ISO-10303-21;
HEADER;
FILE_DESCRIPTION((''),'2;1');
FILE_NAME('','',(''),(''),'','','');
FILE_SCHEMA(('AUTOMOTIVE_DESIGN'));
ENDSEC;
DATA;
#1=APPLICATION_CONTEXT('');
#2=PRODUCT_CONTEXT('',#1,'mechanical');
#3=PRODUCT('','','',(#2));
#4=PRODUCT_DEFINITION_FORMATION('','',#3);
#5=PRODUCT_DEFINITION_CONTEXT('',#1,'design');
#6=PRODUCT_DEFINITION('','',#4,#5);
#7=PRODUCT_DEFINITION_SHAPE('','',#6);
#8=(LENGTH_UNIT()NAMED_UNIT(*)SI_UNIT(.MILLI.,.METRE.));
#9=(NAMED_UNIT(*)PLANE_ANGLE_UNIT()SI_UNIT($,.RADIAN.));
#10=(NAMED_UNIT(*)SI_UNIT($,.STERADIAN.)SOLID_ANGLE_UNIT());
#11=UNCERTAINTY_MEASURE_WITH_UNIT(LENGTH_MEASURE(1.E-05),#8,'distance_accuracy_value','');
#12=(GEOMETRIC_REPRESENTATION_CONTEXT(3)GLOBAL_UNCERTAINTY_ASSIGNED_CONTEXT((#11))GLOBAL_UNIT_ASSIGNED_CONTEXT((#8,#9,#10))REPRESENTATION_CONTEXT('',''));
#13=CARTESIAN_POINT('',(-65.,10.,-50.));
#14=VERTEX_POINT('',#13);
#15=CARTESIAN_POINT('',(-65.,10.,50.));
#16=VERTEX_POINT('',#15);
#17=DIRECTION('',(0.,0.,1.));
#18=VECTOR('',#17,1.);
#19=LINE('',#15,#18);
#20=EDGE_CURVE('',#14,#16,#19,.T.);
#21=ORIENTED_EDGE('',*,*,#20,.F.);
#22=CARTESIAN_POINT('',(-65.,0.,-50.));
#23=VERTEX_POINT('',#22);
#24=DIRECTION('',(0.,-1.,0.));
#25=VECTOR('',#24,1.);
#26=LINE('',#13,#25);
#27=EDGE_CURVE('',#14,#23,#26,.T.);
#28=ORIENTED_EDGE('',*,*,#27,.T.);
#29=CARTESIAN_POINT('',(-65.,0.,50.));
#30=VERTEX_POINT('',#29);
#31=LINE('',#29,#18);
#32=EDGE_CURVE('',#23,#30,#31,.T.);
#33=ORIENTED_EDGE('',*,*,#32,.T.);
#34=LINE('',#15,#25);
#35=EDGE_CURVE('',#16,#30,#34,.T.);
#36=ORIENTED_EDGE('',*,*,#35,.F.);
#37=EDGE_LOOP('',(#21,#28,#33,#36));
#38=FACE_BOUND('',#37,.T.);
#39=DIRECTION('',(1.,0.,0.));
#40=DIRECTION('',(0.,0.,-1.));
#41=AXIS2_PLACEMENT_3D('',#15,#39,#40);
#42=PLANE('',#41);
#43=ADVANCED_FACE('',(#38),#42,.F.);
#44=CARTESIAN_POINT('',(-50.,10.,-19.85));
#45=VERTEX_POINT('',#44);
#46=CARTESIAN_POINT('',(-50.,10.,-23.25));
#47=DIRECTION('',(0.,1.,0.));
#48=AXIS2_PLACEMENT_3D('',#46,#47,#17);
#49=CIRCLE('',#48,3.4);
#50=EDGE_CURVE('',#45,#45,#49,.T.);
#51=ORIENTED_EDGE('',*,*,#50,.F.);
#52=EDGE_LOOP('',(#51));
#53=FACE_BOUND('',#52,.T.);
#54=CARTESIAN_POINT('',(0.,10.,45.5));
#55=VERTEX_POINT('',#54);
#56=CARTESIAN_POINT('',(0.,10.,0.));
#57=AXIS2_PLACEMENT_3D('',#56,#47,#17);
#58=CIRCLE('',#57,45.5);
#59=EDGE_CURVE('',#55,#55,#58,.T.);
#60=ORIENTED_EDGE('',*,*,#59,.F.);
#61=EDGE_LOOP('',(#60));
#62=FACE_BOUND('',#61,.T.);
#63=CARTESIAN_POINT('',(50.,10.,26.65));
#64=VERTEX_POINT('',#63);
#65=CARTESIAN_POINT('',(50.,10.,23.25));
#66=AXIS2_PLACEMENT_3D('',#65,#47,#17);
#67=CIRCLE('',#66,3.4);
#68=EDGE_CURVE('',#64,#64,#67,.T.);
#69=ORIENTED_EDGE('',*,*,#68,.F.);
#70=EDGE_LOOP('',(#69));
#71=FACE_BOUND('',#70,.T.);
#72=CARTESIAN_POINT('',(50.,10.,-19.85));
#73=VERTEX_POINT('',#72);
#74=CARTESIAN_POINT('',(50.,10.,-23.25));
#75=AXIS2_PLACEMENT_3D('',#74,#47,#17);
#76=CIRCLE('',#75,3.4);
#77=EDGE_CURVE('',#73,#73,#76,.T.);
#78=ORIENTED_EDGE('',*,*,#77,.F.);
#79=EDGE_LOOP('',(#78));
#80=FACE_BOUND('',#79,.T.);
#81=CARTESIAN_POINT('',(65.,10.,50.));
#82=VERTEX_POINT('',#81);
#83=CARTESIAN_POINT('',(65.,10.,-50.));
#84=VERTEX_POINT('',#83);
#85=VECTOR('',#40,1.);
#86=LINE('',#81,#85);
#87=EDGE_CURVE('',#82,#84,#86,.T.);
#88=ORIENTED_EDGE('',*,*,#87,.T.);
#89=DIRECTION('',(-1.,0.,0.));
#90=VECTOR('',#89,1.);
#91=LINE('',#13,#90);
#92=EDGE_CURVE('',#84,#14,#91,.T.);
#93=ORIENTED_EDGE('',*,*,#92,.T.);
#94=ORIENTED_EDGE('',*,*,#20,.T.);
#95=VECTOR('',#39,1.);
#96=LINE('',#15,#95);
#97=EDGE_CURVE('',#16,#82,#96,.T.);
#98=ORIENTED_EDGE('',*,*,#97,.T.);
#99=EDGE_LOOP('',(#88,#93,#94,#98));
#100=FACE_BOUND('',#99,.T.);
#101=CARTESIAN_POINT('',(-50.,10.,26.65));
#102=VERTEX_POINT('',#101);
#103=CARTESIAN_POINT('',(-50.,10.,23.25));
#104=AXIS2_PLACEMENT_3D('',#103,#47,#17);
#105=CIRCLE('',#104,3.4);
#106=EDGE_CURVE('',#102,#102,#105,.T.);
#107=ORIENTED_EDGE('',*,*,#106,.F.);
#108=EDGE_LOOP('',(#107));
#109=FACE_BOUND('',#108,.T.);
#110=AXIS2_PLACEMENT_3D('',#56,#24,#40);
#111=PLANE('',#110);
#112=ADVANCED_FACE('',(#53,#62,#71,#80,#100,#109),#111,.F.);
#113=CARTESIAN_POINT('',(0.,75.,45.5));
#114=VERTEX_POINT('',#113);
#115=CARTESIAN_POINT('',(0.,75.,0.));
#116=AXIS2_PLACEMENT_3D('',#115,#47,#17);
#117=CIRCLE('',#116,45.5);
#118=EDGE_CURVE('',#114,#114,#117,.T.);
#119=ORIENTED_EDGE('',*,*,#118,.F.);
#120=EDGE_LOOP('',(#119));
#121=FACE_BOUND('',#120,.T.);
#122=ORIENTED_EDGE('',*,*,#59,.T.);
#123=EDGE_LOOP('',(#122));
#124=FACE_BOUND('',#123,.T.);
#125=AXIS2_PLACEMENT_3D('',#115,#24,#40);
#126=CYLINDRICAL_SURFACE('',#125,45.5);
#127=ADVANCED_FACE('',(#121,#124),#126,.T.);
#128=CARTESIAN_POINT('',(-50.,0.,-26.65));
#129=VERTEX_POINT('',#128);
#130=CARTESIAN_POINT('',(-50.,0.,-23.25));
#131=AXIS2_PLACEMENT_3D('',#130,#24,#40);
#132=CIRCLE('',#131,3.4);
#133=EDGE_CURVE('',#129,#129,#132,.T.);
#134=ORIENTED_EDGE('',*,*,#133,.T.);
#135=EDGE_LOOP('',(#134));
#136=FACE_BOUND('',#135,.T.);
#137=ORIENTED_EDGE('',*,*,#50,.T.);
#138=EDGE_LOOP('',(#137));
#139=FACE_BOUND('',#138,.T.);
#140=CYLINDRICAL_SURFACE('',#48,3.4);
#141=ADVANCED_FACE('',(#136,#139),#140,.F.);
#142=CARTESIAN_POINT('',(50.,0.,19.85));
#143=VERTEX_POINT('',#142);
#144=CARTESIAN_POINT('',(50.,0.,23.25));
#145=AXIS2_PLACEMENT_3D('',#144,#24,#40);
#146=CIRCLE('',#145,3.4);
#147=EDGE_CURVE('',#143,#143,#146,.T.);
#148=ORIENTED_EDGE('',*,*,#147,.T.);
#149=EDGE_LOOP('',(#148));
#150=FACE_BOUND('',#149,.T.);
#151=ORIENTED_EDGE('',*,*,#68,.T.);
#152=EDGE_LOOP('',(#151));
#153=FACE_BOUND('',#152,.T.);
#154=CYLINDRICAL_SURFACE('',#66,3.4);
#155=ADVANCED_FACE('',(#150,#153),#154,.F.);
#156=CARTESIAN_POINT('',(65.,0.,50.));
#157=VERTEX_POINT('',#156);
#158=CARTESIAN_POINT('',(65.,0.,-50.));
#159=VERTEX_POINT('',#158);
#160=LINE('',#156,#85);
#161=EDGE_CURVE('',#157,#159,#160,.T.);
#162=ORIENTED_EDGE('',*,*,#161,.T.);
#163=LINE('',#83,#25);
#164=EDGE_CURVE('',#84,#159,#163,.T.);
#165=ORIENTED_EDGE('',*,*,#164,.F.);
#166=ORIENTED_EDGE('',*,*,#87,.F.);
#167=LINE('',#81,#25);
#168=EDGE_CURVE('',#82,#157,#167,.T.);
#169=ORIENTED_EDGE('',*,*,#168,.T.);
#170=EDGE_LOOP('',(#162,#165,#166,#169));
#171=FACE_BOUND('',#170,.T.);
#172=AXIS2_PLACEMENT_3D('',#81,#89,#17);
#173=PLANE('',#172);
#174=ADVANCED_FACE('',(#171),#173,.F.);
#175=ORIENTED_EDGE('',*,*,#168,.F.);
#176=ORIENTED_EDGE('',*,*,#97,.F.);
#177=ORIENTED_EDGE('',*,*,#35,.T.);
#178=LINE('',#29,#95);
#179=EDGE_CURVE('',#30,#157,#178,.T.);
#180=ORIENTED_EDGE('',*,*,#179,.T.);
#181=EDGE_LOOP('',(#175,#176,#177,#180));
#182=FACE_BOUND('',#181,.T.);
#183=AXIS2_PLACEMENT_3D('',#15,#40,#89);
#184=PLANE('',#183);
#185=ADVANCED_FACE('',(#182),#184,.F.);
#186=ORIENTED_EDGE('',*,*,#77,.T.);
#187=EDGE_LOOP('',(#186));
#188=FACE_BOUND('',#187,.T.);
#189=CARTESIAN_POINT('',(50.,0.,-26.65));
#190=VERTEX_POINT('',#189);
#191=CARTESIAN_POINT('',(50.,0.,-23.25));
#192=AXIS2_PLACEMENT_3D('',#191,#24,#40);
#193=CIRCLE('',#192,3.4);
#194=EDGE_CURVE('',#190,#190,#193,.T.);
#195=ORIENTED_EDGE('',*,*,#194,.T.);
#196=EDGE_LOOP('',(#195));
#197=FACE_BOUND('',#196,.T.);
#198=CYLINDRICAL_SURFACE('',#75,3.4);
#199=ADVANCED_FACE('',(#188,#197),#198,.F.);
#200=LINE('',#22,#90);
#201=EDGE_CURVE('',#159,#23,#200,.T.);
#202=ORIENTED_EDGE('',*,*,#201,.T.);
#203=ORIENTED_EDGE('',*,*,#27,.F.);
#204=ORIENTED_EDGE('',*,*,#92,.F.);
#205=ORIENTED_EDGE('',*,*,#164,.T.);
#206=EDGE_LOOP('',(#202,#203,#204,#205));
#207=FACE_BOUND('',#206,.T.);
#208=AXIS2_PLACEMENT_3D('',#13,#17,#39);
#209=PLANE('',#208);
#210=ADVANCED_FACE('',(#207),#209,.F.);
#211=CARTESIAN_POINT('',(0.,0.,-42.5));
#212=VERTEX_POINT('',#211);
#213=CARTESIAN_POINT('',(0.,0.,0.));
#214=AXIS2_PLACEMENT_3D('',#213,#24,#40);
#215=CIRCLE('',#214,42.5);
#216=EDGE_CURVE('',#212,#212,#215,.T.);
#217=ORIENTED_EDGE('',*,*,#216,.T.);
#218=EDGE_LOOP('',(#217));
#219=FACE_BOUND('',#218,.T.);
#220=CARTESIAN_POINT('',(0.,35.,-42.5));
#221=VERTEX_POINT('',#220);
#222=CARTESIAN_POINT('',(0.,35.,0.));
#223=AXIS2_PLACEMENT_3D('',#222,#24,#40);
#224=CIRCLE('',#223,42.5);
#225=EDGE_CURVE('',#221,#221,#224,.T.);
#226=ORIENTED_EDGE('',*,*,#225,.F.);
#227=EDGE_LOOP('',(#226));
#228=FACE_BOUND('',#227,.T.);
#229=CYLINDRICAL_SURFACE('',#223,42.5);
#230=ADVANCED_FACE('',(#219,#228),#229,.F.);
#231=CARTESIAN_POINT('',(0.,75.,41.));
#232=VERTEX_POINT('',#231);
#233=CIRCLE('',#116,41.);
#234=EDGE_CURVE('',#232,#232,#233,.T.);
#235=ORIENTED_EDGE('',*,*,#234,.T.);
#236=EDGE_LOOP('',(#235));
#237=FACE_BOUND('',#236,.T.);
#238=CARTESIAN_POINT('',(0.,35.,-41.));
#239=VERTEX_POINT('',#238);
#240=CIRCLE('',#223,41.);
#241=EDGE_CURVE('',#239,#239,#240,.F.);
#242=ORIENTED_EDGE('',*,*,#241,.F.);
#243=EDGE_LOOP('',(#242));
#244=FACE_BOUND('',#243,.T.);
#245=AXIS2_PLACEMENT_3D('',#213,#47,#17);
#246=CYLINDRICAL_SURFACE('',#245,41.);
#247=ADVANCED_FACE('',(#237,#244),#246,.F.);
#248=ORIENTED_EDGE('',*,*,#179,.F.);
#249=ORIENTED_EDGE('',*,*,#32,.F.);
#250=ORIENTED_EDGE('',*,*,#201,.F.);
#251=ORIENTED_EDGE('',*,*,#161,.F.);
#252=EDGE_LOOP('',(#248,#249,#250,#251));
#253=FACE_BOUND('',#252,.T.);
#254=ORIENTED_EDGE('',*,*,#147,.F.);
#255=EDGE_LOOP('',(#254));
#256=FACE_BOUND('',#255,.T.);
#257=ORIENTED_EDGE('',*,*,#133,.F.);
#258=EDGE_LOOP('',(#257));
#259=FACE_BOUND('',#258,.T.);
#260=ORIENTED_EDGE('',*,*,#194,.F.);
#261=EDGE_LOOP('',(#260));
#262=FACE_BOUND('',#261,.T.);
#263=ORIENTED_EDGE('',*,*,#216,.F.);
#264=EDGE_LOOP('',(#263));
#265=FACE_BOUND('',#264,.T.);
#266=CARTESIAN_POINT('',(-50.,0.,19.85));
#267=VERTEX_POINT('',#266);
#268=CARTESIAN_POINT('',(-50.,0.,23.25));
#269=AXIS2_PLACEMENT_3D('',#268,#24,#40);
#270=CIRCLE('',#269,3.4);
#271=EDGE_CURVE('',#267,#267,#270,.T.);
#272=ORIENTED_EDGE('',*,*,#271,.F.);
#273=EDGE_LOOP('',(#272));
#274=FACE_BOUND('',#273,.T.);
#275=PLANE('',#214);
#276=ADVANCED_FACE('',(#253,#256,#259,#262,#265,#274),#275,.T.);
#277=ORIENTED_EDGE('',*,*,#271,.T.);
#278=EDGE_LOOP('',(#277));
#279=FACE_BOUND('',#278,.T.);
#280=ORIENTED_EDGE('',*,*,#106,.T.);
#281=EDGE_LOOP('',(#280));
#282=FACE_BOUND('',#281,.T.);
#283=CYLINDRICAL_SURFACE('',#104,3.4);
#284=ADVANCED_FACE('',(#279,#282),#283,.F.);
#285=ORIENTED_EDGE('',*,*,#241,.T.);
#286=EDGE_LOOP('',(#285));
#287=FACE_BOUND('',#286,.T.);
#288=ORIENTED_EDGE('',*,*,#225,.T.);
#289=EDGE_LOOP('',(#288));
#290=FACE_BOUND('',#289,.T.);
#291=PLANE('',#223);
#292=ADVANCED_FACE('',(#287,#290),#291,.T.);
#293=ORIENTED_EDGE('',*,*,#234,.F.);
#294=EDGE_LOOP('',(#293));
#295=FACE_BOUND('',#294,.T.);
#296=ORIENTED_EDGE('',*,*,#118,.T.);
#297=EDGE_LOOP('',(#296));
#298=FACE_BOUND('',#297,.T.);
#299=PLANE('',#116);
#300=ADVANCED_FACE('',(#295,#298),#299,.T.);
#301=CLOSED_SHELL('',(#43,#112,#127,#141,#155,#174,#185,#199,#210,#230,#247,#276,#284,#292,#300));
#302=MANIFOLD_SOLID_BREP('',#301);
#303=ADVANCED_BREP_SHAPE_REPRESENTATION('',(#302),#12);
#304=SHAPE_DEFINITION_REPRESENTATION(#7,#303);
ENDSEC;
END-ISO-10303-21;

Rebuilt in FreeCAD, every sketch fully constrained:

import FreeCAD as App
import Part
import Sketcher
from FreeCAD import Vector
Q = App.Units.Quantity


def add_polygon(sketch, points):
    """Adds a closed chain of lines whose ends are joined by coincident constraints."""
    first, n = sketch.GeometryCount, len(points)
    for a, b in zip(points, points[1:] + points[:1]):
        sketch.addGeometry(Part.LineSegment(App.Vector(*a, 0), App.Vector(*b, 0)), False)
    for i in range(n):
        sketch.addConstraint(Sketcher.Constraint("Coincident", first + i, 2, first + (i + 1) % n, 1))

doc = App.newDocument("Part")
body = doc.addObject("PartDesign::Body", "Body")

# Sketch on XZ plane
sketch1 = body.newObject("Sketcher::SketchObject", "Sketch")
sketch1.AttachmentSupport = (doc.getObject("XZ_Plane"), [""])
sketch1.MapMode = "FlatFace"
add_polygon(sketch1, [(-65, -50), (-65, 50), (65, 50), (65, -50)])  # lines 0-3
sketch1.addConstraint(Sketcher.Constraint("Vertical", 0))
sketch1.addConstraint(Sketcher.Constraint("Horizontal", 1))
sketch1.addConstraint(Sketcher.Constraint("Vertical", 2))
sketch1.addConstraint(Sketcher.Constraint("Horizontal", 3))
sketch1.addConstraint(Sketcher.Constraint("Symmetric", 0, 2, 2, 2, -1, 1))
sketch1.addConstraint(Sketcher.Constraint("DistanceX", 1, 1, 1, 2, Q("130 mm")))
sketch1.addConstraint(Sketcher.Constraint("DistanceY", 0, 1, 0, 2, Q("100 mm")))
pad1 = body.newObject("PartDesign::Pad", "Pad")
pad1.Profile = sketch1
pad1.Length = 10
pad1.Reversed = True

# Sketch on XZ plane
sketch2 = body.newObject("Sketcher::SketchObject", "Sketch001")
sketch2.AttachmentSupport = (doc.getObject("XZ_Plane"), [""])
sketch2.MapMode = "FlatFace"
sketch2.AttachmentOffset = App.Placement(Vector(0, 0, -10), App.Rotation())
sketch2.addGeometry(Part.Circle(Vector(0, 0, 0), Vector(0, 0, 1), 46), False)
sketch2.addConstraint(Sketcher.Constraint("Coincident", 0, 3, -1, 1))
sketch2.addConstraint(Sketcher.Constraint("Diameter", 0, Q("91 mm")))
pad2 = body.newObject("PartDesign::Pad", "Pad001")
pad2.Profile = sketch2
pad2.Length = 65
pad2.Reversed = True

# Sketch on XZ plane
sketch3 = body.newObject("Sketcher::SketchObject", "Sketch002")
sketch3.AttachmentSupport = (doc.getObject("XZ_Plane"), [""])
sketch3.MapMode = "FlatFace"
sketch3.AttachmentOffset = App.Placement(Vector(0, 0, -75), App.Rotation())
sketch3.addGeometry(Part.Circle(Vector(0, 0, 0), Vector(0, 0, 1), 41), False)
sketch3.addConstraint(Sketcher.Constraint("Coincident", 0, 3, -1, 1))
sketch3.addConstraint(Sketcher.Constraint("Diameter", 0, Q("82 mm")))
pocket1 = body.newObject("PartDesign::Pocket", "Pocket")
pocket1.Profile = sketch3
pocket1.Type = "ThroughAll"
pocket1.Reversed = True

# Sketch on XZ plane
sketch4 = body.newObject("Sketcher::SketchObject", "Sketch003")
sketch4.AttachmentSupport = (doc.getObject("XZ_Plane"), [""])
sketch4.MapMode = "FlatFace"
sketch4.addGeometry(Part.Circle(Vector(0, 0, 0), Vector(0, 0, 1), 42), False)
sketch4.addConstraint(Sketcher.Constraint("Coincident", 0, 3, -1, 1))
sketch4.addConstraint(Sketcher.Constraint("Diameter", 0, Q("85 mm")))
pocket2 = body.newObject("PartDesign::Pocket", "Pocket001")
pocket2.Profile = sketch4
pocket2.Length = 35

# Sketch on XZ plane
sketch5 = body.newObject("Sketcher::SketchObject", "Sketch004")
sketch5.AttachmentSupport = (doc.getObject("XZ_Plane"), [""])
sketch5.MapMode = "FlatFace"
sketch5.AttachmentOffset = App.Placement(Vector(0, 0, -10), App.Rotation())
sketch5.addGeometry(Part.Circle(Vector(-50, -23.2, 0), Vector(0, 0, 1), 3.4), False)
sketch5.addGeometry(Part.Circle(Vector(-50, 23.2, 0), Vector(0, 0, 1), 3.4), False)
sketch5.addGeometry(Part.Circle(Vector(50, 23.2, 0), Vector(0, 0, 1), 3.4), False)
sketch5.addGeometry(Part.Circle(Vector(50, -23.2, 0), Vector(0, 0, 1), 3.4), False)
sketch5.addConstraint(Sketcher.Constraint("Equal", 0, 1))
sketch5.addConstraint(Sketcher.Constraint("Equal", 1, 2))
sketch5.addConstraint(Sketcher.Constraint("Equal", 2, 3))
sketch5.addConstraint(Sketcher.Constraint("Symmetric", 0, 3, 2, 3, -1, 1))
sketch5.addConstraint(Sketcher.Constraint("Symmetric", 1, 3, 3, 3, -1, 1))
sketch5.addConstraint(Sketcher.Constraint("Symmetric", 1, 3, 2, 3, -2))
sketch5.addConstraint(Sketcher.Constraint("Diameter", 0, Q("6.8 mm")))
sketch5.addConstraint(Sketcher.Constraint("DistanceX", 0, 3, -1, 1, Q("50 mm")))
sketch5.addConstraint(Sketcher.Constraint("DistanceY", 0, 3, 1, 3, Q("46.5 mm")))
doc.recompute()
hole = body.newObject("PartDesign::Hole", "Hole")
hole.Profile = sketch5
hole.ThreadType = "None"
hole.Diameter = 6.8
hole.DepthType = "Dimension"
hole.Depth = 17.707074
hole.DrillPoint = "Angled"
hole.DrillPointAngle = 118
hole.Reversed = True

doc.recompute()
